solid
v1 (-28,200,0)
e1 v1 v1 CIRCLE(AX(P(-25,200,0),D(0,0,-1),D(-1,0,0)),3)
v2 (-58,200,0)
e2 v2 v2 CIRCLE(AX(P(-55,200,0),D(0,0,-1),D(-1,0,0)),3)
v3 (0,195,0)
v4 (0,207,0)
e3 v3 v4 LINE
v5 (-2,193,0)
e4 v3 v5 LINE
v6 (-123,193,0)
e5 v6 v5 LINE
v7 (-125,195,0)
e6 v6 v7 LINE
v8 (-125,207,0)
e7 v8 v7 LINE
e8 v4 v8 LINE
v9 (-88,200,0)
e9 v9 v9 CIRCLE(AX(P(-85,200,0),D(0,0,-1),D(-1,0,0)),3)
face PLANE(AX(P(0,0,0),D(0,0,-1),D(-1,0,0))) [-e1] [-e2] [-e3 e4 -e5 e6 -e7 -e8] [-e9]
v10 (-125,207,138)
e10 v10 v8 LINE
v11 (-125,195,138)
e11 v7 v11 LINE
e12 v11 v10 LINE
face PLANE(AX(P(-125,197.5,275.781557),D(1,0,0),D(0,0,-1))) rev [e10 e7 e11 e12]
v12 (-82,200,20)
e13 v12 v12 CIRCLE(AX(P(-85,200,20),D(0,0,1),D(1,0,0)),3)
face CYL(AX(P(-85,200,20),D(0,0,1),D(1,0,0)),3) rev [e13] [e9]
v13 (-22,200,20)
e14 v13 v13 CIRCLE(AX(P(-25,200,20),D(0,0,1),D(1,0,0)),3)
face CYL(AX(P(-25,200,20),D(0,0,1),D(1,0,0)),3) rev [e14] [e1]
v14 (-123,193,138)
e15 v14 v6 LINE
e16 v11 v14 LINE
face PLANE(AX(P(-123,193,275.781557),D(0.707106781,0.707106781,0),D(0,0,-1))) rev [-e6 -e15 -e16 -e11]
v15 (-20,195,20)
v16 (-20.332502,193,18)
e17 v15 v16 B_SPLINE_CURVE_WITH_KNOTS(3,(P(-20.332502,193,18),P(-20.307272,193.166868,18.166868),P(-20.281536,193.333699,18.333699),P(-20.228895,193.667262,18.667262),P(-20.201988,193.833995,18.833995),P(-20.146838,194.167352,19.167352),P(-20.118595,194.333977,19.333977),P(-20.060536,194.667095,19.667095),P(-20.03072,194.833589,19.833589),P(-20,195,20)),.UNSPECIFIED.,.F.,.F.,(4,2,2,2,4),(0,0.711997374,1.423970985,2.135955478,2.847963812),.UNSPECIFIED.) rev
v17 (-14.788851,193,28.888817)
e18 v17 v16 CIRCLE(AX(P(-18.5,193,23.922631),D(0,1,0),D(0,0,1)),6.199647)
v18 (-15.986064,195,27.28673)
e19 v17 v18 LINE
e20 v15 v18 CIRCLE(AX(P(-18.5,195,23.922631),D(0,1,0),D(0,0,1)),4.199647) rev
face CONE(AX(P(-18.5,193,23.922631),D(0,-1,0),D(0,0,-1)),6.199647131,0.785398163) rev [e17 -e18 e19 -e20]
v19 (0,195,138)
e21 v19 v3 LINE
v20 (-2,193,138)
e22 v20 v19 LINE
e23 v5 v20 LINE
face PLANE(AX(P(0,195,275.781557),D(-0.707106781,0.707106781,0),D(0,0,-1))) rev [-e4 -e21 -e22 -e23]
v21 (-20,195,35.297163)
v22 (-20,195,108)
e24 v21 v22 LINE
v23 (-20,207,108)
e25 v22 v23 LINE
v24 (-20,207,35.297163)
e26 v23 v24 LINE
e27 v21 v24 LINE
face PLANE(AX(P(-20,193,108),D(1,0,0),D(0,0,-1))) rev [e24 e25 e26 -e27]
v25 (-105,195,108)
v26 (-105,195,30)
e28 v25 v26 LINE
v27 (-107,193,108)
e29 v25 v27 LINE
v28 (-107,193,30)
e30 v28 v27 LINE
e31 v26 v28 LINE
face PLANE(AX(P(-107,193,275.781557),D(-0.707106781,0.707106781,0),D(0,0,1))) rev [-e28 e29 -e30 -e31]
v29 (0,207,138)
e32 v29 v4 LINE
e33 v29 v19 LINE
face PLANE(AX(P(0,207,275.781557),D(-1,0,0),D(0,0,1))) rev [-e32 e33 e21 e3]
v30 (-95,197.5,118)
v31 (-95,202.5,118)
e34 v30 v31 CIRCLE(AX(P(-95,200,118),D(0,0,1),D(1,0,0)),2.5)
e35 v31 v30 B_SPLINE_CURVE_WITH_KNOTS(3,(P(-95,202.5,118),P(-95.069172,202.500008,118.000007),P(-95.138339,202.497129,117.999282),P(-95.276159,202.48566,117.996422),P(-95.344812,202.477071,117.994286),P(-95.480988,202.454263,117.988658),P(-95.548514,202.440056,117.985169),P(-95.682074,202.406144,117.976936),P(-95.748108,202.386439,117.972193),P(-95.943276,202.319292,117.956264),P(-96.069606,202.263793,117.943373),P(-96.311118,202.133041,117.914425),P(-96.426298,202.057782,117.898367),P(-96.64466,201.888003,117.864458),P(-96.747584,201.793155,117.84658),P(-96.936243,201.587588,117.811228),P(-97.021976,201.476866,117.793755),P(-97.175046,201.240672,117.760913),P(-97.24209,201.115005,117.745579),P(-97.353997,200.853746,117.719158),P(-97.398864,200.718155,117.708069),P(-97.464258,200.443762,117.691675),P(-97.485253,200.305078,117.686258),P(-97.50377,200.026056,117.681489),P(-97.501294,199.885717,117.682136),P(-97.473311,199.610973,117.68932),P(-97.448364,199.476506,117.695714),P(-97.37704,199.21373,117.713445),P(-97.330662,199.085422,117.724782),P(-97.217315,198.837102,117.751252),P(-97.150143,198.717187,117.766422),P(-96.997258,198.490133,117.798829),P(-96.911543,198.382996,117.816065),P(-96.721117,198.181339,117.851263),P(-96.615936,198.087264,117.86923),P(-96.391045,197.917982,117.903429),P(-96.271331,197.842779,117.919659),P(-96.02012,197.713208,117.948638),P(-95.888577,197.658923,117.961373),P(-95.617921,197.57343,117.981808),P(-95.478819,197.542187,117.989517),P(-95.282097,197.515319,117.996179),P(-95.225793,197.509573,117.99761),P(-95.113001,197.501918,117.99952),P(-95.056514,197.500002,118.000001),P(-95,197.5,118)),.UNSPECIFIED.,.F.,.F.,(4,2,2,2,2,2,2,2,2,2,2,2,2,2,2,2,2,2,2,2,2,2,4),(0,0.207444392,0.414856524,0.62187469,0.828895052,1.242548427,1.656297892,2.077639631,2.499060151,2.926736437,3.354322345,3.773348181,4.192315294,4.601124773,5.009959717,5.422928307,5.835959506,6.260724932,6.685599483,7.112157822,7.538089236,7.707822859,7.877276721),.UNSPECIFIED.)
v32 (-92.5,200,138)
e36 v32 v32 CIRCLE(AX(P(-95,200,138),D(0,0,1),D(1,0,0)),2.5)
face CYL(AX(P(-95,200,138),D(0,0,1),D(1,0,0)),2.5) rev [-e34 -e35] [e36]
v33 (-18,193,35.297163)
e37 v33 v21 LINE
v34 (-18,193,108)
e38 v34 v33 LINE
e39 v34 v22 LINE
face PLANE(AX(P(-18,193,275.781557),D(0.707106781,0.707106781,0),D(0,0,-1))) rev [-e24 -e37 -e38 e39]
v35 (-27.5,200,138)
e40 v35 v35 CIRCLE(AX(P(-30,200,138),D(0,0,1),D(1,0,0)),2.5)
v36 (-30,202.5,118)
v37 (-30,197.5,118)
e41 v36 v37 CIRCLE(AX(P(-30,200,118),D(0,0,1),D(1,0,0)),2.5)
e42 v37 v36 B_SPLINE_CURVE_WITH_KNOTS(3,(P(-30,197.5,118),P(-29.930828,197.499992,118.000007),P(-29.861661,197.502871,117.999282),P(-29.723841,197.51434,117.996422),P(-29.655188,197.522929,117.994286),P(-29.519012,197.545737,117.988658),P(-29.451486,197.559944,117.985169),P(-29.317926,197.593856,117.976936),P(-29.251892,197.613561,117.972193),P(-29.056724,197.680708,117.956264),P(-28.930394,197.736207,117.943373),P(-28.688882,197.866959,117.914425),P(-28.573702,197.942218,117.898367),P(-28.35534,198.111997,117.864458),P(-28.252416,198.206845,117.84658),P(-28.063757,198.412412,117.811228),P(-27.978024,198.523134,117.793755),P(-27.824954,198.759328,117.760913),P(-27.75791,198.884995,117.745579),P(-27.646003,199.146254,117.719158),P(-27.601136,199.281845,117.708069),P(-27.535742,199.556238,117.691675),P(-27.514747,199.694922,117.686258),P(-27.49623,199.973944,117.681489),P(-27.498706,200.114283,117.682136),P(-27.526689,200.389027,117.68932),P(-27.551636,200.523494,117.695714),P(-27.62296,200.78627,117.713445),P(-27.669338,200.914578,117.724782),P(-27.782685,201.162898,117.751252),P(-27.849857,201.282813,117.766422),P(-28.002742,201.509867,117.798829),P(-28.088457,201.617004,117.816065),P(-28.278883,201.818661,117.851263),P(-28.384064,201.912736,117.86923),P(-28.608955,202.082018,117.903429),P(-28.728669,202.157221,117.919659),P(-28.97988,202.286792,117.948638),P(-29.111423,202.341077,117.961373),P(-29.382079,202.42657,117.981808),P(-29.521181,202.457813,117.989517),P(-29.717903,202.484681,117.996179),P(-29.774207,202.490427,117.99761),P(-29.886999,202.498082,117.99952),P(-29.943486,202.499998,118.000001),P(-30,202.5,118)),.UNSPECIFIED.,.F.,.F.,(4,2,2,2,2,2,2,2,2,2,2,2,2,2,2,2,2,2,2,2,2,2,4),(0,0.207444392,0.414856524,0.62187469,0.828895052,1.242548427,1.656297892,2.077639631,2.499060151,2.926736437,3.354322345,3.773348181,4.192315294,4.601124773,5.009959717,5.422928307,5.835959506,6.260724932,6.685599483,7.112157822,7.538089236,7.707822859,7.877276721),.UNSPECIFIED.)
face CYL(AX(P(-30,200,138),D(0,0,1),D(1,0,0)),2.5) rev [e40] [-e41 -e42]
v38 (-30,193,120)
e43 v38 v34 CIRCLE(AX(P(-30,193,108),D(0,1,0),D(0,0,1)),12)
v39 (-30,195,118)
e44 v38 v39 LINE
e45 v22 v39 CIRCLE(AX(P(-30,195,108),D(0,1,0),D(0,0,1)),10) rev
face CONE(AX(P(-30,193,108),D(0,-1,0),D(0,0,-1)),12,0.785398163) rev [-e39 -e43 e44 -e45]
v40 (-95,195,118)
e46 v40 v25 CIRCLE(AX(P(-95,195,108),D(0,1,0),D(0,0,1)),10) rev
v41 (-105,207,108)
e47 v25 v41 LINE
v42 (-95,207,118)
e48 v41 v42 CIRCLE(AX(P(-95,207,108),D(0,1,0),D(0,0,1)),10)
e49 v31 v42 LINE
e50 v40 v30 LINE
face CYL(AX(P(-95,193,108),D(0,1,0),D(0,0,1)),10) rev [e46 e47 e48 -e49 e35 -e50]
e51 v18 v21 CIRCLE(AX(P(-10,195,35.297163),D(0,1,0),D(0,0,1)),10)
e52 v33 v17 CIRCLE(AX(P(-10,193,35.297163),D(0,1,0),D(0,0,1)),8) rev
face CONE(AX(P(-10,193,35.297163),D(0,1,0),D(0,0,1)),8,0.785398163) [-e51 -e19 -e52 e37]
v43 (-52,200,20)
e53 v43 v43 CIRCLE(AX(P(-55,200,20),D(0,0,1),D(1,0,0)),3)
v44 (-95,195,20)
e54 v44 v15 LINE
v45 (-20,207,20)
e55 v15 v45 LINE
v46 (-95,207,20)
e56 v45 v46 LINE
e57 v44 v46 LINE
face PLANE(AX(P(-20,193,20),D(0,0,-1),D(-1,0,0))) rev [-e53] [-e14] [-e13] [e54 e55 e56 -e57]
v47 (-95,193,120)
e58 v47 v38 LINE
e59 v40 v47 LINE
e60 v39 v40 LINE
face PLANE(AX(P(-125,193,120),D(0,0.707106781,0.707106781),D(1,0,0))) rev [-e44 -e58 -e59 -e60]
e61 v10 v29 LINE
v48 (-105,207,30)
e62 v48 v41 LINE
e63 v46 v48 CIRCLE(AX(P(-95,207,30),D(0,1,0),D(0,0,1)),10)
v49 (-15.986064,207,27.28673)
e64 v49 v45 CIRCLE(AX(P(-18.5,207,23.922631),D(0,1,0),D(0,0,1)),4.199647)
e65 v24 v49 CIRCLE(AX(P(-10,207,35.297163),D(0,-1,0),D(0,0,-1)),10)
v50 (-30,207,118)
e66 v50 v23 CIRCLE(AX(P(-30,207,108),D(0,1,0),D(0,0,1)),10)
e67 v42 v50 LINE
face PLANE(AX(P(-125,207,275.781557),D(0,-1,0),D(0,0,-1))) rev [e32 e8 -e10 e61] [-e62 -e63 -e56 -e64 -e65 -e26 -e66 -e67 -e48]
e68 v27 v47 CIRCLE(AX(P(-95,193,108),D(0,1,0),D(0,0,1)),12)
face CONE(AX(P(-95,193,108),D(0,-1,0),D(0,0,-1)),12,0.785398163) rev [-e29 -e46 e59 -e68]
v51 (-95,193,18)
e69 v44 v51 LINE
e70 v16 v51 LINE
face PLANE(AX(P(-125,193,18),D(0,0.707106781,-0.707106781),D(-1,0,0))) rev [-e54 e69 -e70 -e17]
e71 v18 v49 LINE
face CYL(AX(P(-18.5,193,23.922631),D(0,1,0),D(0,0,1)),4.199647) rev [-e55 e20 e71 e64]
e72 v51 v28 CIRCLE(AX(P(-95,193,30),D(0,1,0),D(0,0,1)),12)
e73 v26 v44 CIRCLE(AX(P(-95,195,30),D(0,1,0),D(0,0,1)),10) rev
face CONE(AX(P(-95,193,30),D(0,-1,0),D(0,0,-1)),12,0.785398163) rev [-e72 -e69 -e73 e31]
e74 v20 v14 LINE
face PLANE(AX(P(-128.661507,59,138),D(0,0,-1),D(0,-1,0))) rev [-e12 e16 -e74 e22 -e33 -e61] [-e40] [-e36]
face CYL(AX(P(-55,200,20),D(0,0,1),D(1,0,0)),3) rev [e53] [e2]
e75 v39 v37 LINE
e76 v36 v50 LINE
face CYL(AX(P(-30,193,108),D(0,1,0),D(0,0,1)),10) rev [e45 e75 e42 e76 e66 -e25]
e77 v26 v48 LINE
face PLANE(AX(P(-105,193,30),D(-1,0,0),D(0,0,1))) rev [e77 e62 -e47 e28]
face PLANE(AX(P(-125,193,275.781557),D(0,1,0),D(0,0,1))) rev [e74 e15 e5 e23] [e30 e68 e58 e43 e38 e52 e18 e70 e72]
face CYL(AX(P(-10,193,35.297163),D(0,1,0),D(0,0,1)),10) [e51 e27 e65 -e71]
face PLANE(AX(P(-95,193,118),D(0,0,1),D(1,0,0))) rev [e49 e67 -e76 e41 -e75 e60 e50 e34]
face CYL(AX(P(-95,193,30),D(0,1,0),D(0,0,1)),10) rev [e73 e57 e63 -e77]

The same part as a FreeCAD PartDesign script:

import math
import FreeCAD as App
import Part
import Sketcher
from FreeCAD import Vector
Q = App.Units.Quantity


def edges_at(feature, points):
    """Names of the edges that pass closest to the given points."""
    edges = feature.Shape.Edges
    near = lambda p: min(range(len(edges)), key=lambda i: edges[i].distToShape(Part.Vertex(*p))[0])
    return sorted({f"Edge{near(p) + 1}" for p in points})

doc = App.newDocument("Part")
body = doc.addObject("PartDesign::Body", "Body")

# Sketch on XY plane
sketch1 = doc.addObject("Sketcher::SketchObject", "Sketch")
body.addObject(sketch1)
sketch1.AttachmentSupport = (doc.XY_Plane, [""])
sketch1.MapMode = "FlatFace"
sketch1.addGeometry([
    Part.LineSegment(Vector(-125, 193, 0), Vector(0, 193, 0)),
    Part.LineSegment(Vector(0, 193, 0), Vector(0, 207, 0)),
    Part.LineSegment(Vector(0, 207, 0), Vector(-125, 207, 0)),
    Part.LineSegment(Vector(-125, 207, 0), Vector(-125, 193, 0)),
], False)
sketch1.addConstraint([
    Sketcher.Constraint("Coincident", 0, 2, 1, 1),
    Sketcher.Constraint("Coincident", 1, 2, 2, 1),
    Sketcher.Constraint("Coincident", 2, 2, 3, 1),
    Sketcher.Constraint("Coincident", 3, 2, 0, 1),
    Sketcher.Constraint("Horizontal", 0),
    Sketcher.Constraint("Vertical", 1),
    Sketcher.Constraint("Horizontal", 2),
    Sketcher.Constraint("Vertical", 3),
    Sketcher.Constraint("PointOnObject", 0, 2, -2),
    Sketcher.Constraint("DistanceX", 0, 1, 0, 2, Q("125 mm")),
    Sketcher.Constraint("DistanceY", 1, 1, 1, 2, Q("14 mm")),
    Sketcher.Constraint("DistanceY", -1, 1, 0, 2, Q("193 mm")),
])
pad1 = doc.addObject("PartDesign::Pad", "Pad")
body.addObject(pad1)
pad1.Profile = sketch1
pad1.Length = 138

# Sketch on XZ plane
sketch2 = doc.addObject("Sketcher::SketchObject", "Sketch001")
body.addObject(sketch2)
sketch2.AttachmentSupport = (doc.XZ_Plane, [""])
sketch2.MapMode = "FlatFace"
sketch2.AttachmentOffset = App.Placement(Vector(0, 0, -207), App.Rotation())
sketch2.addGeometry([
    Part.LineSegment(Vector(-105, 30, 0), Vector(-105, 108, 0)),  # 0
    Part.ArcOfCircle(Part.Circle(Vector(-95, 108, 0), Vector(0, 0, 1), 10), math.radians(90), math.radians(180)),  # 1
    Part.LineSegment(Vector(-95, 118, 0), Vector(-30, 118, 0)),  # 2
    Part.ArcOfCircle(Part.Circle(Vector(-30, 108, 0), Vector(0, 0, 1), 10), math.radians(0), math.radians(90)),  # 3
    Part.LineSegment(Vector(-20, 108, 0), Vector(-20, 35.297163, 0)),  # 4
    Part.ArcOfCircle(Part.Circle(Vector(-10, 35.297163, 0), Vector(0, 0, 1), 10), math.radians(180), math.radians(233.229845)),  # 5
    Part.ArcOfCircle(Part.Circle(Vector(-18.5, 23.922631, 0), Vector(0, 0, 1), 4.199647), math.radians(-110.926673), math.radians(53.229845)),  # 6
    Part.LineSegment(Vector(-20, 20, 0), Vector(-95, 20, 0)),  # 7
    Part.ArcOfCircle(Part.Circle(Vector(-95, 30, 0), Vector(0, 0, 1), 10), math.radians(180), math.radians(270)),  # 8
], False)
sketch2.addConstraint([
    Sketcher.Constraint("Tangent", 0, 2, 1, 2),
    Sketcher.Constraint("Tangent", 1, 1, 2, 1),
    Sketcher.Constraint("Tangent", 2, 2, 3, 2),
    Sketcher.Constraint("Tangent", 3, 1, 4, 1),
    Sketcher.Constraint("Tangent", 4, 2, 5, 1),
    Sketcher.Constraint("Tangent", 5, 2, 6, 2),
    Sketcher.Constraint("Coincident", 6, 1, 7, 1),
    Sketcher.Constraint("Tangent", 7, 2, 8, 2),
    Sketcher.Constraint("Tangent", 8, 1, 0, 1),
    Sketcher.Constraint("Vertical", 0),
    Sketcher.Constraint("Horizontal", 2),
    Sketcher.Constraint("Vertical", 4),
    Sketcher.Constraint("Horizontal", 7),
    Sketcher.Constraint("Equal", 1, 3),
    Sketcher.Constraint("Equal", 3, 5),
    Sketcher.Constraint("Equal", 5, 8),
    Sketcher.Constraint("Vertical", 4, 2, 6, 1),
    Sketcher.Constraint("Radius", 1, Q("10 mm")),
    Sketcher.Constraint("DistanceX", 2, 1, 2, 2, Q("65 mm")),
    Sketcher.Constraint("DistanceY", 0, 1, 0, 2, Q("78 mm")),
    Sketcher.Constraint("DistanceX", 1, 3, -1, 1, Q("95 mm")),
    Sketcher.Constraint("DistanceY", -1, 1, 1, 3, Q("108 mm")),
    Sketcher.Constraint("DistanceX", 6, 3, -1, 1, Q("18.5 mm")),
    Sketcher.Constraint("Radius", 6, Q("4.199647 mm")),
])
pocket1 = doc.addObject("PartDesign::Pocket", "Pocket")
body.addObject(pocket1)
pocket1.Profile = sketch2
pocket1.Type = "ThroughAll"
pocket1.Reversed = True

# Sketch on XY plane
sketch3 = doc.addObject("Sketcher::SketchObject", "Sketch002")
body.addObject(sketch3)
sketch3.AttachmentSupport = (doc.XY_Plane, [""])
sketch3.MapMode = "FlatFace"
sketch3.AttachmentOffset = App.Placement(Vector(0, 0, 20), App.Rotation())
sketch3.addGeometry([
    Part.Circle(Vector(-25, 200, 0), Vector(0, 0, 1), 3),
    Part.Circle(Vector(-55, 200, 0), Vector(0, 0, 1), 3),
    Part.Circle(Vector(-85, 200, 0), Vector(0, 0, 1), 3),
], False)
sketch3.addConstraint([
    Sketcher.Constraint("Equal", 0, 1),
    Sketcher.Constraint("Equal", 1, 2),
    Sketcher.Constraint("Horizontal", 0, 3, 1, 3),
    Sketcher.Constraint("Horizontal", 1, 3, 2, 3),
    Sketcher.Constraint("Diameter", 0, Q("6 mm")),
    Sketcher.Constraint("DistanceX", 0, 3, -1, 1, Q("25 mm")),
    Sketcher.Constraint("DistanceY", -1, 1, 0, 3, Q("200 mm")),
    Sketcher.Constraint("DistanceX", 1, 3, -1, 1, Q("55 mm")),
    Sketcher.Constraint("DistanceX", 2, 3, -1, 1, Q("85 mm")),
])
doc.recompute()
hole = doc.addObject("PartDesign::Hole", "Hole")
body.addObject(hole)
hole.Profile = sketch3
hole.ThreadType = "None"
hole.Diameter = 6
hole.DepthType = "Dimension"
hole.Depth = 28.197418
hole.DrillPoint = "Angled"
hole.DrillPointAngle = 118

# Sketch on XY plane
sketch4 = doc.addObject("Sketcher::SketchObject", "Sketch003")
body.addObject(sketch4)
sketch4.AttachmentSupport = (doc.XY_Plane, [""])
sketch4.MapMode = "FlatFace"
sketch4.AttachmentOffset = App.Placement(Vector(0, 0, 138), App.Rotation())
sketch4.addGeometry([
    Part.Circle(Vector(-95, 200, 0), Vector(0, 0, 1), 2.5),
    Part.Circle(Vector(-30, 200, 0), Vector(0, 0, 1), 2.5),
], False)
sketch4.addConstraint([
    Sketcher.Constraint("Equal", 0, 1),
    Sketcher.Constraint("Horizontal", 0, 3, 1, 3),
    Sketcher.Constraint("Diameter", 0, Q("5 mm")),
    Sketcher.Constraint("DistanceX", 0, 3, -1, 1, Q("95 mm")),
    Sketcher.Constraint("DistanceY", -1, 1, 0, 3, Q("200 mm")),
    Sketcher.Constraint("DistanceX", 1, 3, -1, 1, Q("30 mm")),
])
doc.recompute()
hole2 = doc.addObject("PartDesign::Hole", "Hole001")
body.addObject(hole2)
hole2.Profile = sketch4
hole2.ThreadType = "None"
hole2.Diameter = 5
hole2.DepthType = "Dimension"
hole2.Depth = 21.497848
hole2.DrillPoint = "Angled"
hole2.DrillPointAngle = 118
doc.recompute()

chamfer = doc.addObject("PartDesign::Chamfer", "Chamfer")
body.addObject(chamfer)
chamfer.Base = (hole2, edges_at(hole2, [
    (0, 193, 69),
    (-125, 193, 69),
    (-18.94, 193, 30.817),
    (-20, 193, 71.649),
    (-22.929, 193, 115.071),
    (-62.5, 193, 118),
    (-102.071, 193, 115.071),
    (-105, 193, 69),
    (-102.071, 193, 22.929),
    (-57.5, 193, 20),
    (-14.822, 193, 21.896),
]))
chamfer.Size = 2

doc.recompute()
